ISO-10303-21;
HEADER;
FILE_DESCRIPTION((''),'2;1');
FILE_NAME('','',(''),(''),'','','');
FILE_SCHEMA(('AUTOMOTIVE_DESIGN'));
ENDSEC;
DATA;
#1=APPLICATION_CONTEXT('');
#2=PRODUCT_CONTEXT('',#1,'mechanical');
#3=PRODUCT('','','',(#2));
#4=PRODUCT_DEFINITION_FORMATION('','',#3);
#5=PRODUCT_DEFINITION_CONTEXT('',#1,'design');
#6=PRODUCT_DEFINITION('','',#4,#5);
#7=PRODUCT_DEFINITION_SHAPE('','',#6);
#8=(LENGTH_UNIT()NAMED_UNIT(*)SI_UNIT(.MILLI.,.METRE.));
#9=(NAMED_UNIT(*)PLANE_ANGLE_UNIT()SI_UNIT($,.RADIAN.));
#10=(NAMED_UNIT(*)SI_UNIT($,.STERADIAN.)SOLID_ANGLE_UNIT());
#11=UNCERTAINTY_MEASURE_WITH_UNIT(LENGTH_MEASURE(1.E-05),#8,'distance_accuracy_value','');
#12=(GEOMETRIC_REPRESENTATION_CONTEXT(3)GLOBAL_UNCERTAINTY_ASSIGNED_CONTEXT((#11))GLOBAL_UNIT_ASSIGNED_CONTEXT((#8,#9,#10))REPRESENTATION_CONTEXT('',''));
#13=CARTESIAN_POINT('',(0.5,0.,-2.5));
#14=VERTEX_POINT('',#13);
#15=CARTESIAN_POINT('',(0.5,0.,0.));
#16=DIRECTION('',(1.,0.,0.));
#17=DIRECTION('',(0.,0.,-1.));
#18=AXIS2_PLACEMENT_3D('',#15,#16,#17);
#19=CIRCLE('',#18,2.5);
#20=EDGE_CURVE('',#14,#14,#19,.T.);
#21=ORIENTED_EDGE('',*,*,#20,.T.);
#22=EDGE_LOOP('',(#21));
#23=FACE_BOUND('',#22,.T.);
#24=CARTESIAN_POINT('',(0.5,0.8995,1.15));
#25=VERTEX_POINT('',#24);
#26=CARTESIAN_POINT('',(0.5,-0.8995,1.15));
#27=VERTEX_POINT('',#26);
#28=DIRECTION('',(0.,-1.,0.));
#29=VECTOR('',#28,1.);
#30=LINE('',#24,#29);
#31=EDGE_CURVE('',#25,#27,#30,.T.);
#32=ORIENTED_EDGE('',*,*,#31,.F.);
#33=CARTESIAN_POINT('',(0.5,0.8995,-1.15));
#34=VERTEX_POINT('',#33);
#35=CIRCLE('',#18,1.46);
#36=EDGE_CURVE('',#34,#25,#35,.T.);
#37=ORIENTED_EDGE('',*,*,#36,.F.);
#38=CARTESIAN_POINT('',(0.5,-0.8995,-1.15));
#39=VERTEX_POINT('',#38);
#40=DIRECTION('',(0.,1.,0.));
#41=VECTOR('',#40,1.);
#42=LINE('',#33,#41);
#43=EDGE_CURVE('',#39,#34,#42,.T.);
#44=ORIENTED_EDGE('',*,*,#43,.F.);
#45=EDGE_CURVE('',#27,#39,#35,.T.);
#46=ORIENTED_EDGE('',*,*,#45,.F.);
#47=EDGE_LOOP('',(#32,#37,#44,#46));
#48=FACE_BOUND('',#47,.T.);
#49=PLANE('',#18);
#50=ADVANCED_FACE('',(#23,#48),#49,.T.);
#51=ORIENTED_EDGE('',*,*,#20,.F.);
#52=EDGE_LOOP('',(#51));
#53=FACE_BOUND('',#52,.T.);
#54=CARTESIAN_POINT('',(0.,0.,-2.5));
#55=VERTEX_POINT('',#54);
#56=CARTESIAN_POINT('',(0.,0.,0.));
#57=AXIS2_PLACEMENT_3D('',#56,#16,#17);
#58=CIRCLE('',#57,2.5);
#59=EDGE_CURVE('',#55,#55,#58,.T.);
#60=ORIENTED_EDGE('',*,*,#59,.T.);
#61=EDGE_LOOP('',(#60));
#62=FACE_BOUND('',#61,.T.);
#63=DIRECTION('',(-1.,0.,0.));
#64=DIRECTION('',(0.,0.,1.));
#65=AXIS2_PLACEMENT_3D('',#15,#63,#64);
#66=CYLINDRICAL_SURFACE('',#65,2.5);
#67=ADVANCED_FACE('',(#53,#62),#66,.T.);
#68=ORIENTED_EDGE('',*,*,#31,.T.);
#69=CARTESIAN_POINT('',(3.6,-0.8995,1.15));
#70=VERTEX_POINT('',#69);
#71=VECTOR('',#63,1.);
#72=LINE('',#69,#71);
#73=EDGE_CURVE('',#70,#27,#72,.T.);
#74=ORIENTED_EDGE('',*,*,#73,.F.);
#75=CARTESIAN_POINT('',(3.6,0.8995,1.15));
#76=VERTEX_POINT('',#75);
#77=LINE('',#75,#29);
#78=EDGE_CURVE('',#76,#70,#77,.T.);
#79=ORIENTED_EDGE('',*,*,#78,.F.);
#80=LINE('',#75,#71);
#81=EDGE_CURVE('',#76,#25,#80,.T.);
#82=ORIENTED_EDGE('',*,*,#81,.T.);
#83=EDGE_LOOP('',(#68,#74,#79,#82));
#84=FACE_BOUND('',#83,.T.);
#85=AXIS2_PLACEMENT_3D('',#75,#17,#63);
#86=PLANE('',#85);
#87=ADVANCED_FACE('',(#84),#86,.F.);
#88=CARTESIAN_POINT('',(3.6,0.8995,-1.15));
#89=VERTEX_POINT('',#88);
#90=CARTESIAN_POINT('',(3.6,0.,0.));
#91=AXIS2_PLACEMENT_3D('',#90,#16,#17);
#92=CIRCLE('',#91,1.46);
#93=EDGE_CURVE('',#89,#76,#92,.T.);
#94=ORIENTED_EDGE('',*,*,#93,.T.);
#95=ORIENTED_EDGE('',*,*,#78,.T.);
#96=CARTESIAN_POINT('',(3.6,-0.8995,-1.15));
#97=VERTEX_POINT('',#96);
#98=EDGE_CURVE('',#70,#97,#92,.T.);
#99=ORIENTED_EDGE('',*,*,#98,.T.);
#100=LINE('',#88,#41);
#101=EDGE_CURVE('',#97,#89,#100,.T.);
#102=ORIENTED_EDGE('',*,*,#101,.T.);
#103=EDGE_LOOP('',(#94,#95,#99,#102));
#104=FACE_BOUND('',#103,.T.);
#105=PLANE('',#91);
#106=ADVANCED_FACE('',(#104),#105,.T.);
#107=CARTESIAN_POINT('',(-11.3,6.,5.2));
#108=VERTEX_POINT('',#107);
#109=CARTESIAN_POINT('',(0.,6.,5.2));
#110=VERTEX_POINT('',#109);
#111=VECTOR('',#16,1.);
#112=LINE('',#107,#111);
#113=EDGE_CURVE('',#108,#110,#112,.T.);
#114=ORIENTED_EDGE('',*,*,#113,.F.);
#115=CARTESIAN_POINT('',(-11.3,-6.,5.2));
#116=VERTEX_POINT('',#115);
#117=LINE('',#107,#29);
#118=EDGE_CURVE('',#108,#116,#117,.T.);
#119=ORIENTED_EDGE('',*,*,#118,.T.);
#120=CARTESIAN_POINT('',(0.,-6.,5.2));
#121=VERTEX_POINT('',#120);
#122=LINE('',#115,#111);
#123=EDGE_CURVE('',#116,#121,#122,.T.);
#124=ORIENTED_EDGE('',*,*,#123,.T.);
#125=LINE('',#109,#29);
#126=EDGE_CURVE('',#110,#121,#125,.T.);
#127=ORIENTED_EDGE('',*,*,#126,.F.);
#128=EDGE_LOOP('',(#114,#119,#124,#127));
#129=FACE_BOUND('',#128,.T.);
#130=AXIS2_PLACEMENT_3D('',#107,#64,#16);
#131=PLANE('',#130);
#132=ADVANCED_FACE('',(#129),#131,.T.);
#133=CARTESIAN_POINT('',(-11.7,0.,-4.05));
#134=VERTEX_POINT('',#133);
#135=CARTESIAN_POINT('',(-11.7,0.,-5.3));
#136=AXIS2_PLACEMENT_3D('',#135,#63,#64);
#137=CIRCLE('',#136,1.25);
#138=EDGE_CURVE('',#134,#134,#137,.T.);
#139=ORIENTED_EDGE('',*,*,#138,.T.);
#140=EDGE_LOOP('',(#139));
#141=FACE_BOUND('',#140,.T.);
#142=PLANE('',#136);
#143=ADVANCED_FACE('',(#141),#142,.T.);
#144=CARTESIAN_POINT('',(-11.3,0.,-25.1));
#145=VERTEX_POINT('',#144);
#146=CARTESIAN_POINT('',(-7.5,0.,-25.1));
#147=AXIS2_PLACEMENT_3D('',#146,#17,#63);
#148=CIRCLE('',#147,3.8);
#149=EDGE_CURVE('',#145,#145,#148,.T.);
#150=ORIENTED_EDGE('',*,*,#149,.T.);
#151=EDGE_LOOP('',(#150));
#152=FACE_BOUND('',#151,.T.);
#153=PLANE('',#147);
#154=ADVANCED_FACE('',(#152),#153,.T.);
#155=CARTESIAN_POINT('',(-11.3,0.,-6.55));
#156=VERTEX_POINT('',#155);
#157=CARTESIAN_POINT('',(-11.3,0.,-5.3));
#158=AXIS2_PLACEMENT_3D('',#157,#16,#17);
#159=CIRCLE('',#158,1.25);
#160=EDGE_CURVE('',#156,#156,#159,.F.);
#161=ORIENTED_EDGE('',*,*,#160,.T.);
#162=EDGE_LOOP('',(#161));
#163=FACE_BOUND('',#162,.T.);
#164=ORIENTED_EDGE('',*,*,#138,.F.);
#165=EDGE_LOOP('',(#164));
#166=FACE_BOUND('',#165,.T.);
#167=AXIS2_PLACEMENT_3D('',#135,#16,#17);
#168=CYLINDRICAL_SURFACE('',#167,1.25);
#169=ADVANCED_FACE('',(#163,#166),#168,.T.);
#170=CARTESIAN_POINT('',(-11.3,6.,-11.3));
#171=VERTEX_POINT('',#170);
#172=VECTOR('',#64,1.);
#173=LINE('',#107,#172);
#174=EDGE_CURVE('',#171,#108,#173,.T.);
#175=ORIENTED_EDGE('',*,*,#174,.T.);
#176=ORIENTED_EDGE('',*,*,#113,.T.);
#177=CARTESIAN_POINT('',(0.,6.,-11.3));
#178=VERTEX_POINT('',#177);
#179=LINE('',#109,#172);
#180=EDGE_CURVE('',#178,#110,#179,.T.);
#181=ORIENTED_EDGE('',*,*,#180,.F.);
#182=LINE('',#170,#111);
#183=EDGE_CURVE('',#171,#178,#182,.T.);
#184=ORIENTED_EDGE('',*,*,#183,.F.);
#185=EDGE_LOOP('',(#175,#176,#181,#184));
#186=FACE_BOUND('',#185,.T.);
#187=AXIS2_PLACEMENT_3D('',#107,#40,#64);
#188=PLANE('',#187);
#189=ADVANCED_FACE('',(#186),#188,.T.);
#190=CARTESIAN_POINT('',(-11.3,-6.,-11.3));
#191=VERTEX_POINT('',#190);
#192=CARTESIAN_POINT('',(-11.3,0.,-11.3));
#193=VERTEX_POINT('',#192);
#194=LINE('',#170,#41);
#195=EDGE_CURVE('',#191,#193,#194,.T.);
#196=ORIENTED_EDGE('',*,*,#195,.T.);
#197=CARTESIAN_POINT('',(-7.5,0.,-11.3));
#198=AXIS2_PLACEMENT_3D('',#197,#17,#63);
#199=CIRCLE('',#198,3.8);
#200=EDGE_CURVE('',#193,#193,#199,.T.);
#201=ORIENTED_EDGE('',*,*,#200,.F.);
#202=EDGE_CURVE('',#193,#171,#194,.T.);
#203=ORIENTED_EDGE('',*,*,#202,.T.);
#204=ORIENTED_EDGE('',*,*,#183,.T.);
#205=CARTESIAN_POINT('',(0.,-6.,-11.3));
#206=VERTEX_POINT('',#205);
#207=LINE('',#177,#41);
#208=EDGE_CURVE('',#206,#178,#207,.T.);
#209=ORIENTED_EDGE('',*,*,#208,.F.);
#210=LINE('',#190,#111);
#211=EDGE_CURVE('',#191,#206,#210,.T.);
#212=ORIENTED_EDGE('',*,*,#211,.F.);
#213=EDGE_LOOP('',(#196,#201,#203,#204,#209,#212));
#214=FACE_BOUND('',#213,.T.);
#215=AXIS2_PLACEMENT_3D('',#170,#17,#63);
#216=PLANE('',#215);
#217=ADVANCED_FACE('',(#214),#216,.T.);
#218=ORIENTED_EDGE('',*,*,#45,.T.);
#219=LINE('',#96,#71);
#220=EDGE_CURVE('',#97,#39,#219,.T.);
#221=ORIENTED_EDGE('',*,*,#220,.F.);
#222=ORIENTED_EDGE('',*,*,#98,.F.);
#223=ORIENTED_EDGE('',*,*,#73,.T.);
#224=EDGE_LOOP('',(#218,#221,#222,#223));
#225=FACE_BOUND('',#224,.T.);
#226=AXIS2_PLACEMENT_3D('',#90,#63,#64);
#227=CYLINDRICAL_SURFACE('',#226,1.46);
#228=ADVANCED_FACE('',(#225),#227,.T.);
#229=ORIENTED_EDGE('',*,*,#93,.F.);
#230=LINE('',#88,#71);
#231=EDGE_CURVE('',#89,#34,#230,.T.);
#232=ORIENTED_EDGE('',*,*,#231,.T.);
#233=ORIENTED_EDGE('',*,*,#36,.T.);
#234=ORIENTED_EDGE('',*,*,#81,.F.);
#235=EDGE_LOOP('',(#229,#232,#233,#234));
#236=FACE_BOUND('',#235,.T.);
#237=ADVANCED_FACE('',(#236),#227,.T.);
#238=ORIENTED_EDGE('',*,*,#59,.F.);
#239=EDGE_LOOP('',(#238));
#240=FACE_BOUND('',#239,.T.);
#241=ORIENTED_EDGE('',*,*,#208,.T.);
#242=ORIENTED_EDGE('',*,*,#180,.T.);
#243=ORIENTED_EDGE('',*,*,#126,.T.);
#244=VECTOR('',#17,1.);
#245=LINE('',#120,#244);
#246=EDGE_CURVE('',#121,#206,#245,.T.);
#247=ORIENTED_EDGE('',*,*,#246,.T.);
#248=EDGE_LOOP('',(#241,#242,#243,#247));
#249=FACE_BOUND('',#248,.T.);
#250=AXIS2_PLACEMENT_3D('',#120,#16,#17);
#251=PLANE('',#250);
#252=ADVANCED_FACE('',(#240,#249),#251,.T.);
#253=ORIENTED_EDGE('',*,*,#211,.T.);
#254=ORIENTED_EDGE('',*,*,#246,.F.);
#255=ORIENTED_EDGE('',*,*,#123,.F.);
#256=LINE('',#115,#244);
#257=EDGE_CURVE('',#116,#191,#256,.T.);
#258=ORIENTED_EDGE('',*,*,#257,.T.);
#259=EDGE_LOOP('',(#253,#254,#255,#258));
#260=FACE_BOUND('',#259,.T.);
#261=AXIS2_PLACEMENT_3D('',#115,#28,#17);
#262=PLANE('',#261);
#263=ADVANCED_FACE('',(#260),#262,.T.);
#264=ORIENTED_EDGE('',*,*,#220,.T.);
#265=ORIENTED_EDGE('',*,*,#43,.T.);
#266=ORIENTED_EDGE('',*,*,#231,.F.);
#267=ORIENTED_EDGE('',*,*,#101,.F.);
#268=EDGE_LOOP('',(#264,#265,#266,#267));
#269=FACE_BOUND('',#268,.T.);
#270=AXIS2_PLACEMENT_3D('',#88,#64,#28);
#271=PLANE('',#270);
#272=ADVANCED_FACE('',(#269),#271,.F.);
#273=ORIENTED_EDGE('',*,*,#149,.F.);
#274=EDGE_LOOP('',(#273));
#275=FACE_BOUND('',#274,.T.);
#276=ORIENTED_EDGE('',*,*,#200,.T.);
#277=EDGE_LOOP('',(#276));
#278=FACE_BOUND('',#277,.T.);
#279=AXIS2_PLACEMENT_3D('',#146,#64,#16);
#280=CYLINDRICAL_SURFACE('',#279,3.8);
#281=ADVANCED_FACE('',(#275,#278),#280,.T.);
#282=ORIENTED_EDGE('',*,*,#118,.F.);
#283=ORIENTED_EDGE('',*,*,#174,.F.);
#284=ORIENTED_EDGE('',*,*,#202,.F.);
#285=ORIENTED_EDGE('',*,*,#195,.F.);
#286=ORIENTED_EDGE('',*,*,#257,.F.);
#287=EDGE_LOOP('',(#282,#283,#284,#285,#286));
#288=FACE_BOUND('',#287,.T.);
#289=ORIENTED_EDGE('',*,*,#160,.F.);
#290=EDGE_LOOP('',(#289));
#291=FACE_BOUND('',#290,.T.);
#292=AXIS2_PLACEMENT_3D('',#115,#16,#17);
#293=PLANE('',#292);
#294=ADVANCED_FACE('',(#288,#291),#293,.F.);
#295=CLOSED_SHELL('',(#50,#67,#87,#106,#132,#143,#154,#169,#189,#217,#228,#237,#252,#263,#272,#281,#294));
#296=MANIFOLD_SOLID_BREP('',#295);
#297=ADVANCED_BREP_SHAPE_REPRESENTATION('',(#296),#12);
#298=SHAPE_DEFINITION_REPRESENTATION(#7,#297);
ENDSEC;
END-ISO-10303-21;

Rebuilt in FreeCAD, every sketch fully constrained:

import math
import FreeCAD as App
import Part
import Sketcher

V = App.Vector
Q = App.Units.Quantity


def add_polygon(sketch, points):
    """Adds a closed chain of lines whose ends are joined by coincident constraints."""
    first, n = sketch.GeometryCount, len(points)
    for a, b in zip(points, points[1:] + points[:1]):
        sketch.addGeometry(Part.LineSegment(App.Vector(*a, 0), App.Vector(*b, 0)), False)
    for i in range(n):
        sketch.addConstraint(Sketcher.Constraint("Coincident", first + i, 2, first + (i + 1) % n, 1))

doc = App.newDocument("Part")
body = doc.addObject("PartDesign::Body", "Body")

# Sketch on YZ plane
sketch1 = doc.addObject("Sketcher::SketchObject", "Sketch")
body.addObject(sketch1)
sketch1.AttachmentSupport = (doc.YZ_Plane, [""])
sketch1.MapMode = "FlatFace"
add_polygon(sketch1, [(6, 5), (-6, 5), (-6, -11), (6, -11)])  # lines 0-3
sketch1.addConstraint([
    Sketcher.Constraint("Horizontal", 0),
    Sketcher.Constraint("Vertical", 1),
    Sketcher.Constraint("Horizontal", 2),
    Sketcher.Constraint("Vertical", 3),
    Sketcher.Constraint("DistanceX", 0, 2, 0, 1, Q("12 mm")),
    Sketcher.Constraint("DistanceY", 1, 2, 1, 1, Q("16.5 mm")),
    Sketcher.Constraint("DistanceX", 0, 2, -1, 1, Q("6 mm")),
    Sketcher.Constraint("DistanceY", -1, 1, 0, 2, Q("5.2 mm")),
])
pad1 = doc.addObject("PartDesign::Pad", "Pad")
body.addObject(pad1)
pad1.Profile = sketch1
pad1.Length = 11.3
pad1.Reversed = True

# Sketch on YZ plane
sketch2 = doc.addObject("Sketcher::SketchObject", "Sketch001")
body.addObject(sketch2)
sketch2.AttachmentSupport = (doc.YZ_Plane, [""])
sketch2.MapMode = "FlatFace"
sketch2.addGeometry(Part.Circle(V(0, 0, 0), V(0, 0, 1), 2.5), False)
sketch2.addConstraint([
    Sketcher.Constraint("Coincident", 0, 3, -1, 1),
    Sketcher.Constraint("Diameter", 0, Q("5 mm")),
])
pad2 = doc.addObject("PartDesign::Pad", "Pad001")
body.addObject(pad2)
pad2.Profile = sketch2
pad2.Length = 0.5

# Sketch on YZ plane
sketch3 = doc.addObject("Sketcher::SketchObject", "Sketch002")
body.addObject(sketch3)
sketch3.AttachmentSupport = (doc.YZ_Plane, [""])
sketch3.MapMode = "FlatFace"
sketch3.AttachmentOffset = App.Placement(V(0, 0, 0.5), App.Rotation())
sketch3.addGeometry([
    Part.LineSegment(V(-0.9, -1.1, 0), V(0.9, -1.1, 0)),
    Part.ArcOfCircle(Part.Circle(V(0, 0, 0), V(0, 0, 1), 1.5), math.radians(-52), math.radians(52)),
    Part.LineSegment(V(0.9, 1.1, 0), V(-0.9, 1.1, 0)),
    Part.ArcOfCircle(Part.Circle(V(0, 0, 0), V(0, 0, 1), 1.5), math.radians(128), math.radians(232)),
], False)
sketch3.addConstraint([
    Sketcher.Constraint("Coincident", 0, 2, 1, 1),
    Sketcher.Constraint("Coincident", 1, 2, 2, 1),
    Sketcher.Constraint("Coincident", 2, 2, 3, 1),
    Sketcher.Constraint("Coincident", 3, 2, 0, 1),
    Sketcher.Constraint("Horizontal", 0),
    Sketcher.Constraint("Horizontal", 2),
    Sketcher.Constraint("Coincident", 1, 3, -1, 1),
    Sketcher.Constraint("Coincident", 3, 3, -1, 1),
    Sketcher.Constraint("Equal", 1, 3),
    Sketcher.Constraint("Vertical", 0, 2, 1, 2),
    Sketcher.Constraint("Radius", 1, Q("1.46 mm")),
    Sketcher.Constraint("DistanceY", 0, 2, 1, 2, Q("2.3 mm")),
])
pad3 = doc.addObject("PartDesign::Pad", "Pad002")
body.addObject(pad3)
pad3.Profile = sketch3
pad3.Length = 3.1

# Sketch on XY plane
sketch4 = doc.addObject("Sketcher::SketchObject", "Sketch003")
body.addObject(sketch4)
sketch4.AttachmentSupport = (doc.XY_Plane, [""])
sketch4.MapMode = "FlatFace"
sketch4.AttachmentOffset = App.Placement(V(0, 0, -11.3), App.Rotation())
sketch4.addGeometry(Part.Circle(V(-7.5, 0, 0), V(0, 0, 1), 3.8), False)
sketch4.addConstraint([
    Sketcher.Constraint("PointOnObject", 0, 3, -1),
    Sketcher.Constraint("Diameter", 0, Q("7.6 mm")),
    Sketcher.Constraint("DistanceX", 0, 3, -1, 1, Q("7.5 mm")),
])
pad4 = doc.addObject("PartDesign::Pad", "Pad003")
body.addObject(pad4)
pad4.Profile = sketch4
pad4.Length = 13.8
pad4.Reversed = True

# Sketch on YZ plane
sketch5 = doc.addObject("Sketcher::SketchObject", "Sketch004")
body.addObject(sketch5)
sketch5.AttachmentSupport = (doc.YZ_Plane, [""])
sketch5.MapMode = "FlatFace"
sketch5.AttachmentOffset = App.Placement(V(0, 0, -11.3), App.Rotation())
sketch5.addGeometry(Part.Circle(V(0, -5.3, 0), V(0, 0, 1), 1.2), False)
sketch5.addConstraint([
    Sketcher.Constraint("PointOnObject", 0, 3, -2),
    Sketcher.Constraint("Diameter", 0, Q("2.5 mm")),
    Sketcher.Constraint("DistanceY", 0, 3, -1, 1, Q("5.3 mm")),
])
pad5 = doc.addObject("PartDesign::Pad", "Pad004")
body.addObject(pad5)
pad5.Profile = sketch5
pad5.Length = 0.4
pad5.Reversed = True

doc.recompute()
